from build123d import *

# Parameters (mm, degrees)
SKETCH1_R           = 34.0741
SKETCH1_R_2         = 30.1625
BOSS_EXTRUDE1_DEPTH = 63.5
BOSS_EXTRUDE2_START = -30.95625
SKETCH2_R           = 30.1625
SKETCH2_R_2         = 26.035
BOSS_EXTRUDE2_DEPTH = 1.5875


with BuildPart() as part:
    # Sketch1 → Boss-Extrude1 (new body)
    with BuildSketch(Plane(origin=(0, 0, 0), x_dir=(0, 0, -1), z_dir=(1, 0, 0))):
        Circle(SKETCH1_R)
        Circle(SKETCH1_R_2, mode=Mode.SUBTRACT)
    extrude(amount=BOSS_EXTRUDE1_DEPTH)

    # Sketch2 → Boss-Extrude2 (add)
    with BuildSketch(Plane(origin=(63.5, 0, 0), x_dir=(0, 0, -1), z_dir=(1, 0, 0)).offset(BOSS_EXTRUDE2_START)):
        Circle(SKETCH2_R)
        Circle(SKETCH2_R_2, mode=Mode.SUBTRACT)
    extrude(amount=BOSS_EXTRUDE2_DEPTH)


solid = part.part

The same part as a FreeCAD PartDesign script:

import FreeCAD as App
import Part
import Sketcher

V = App.Vector
Q = App.Units.Quantity

doc = App.newDocument("Part")
body = doc.addObject("PartDesign::Body", "Body")

# Sketch on YZ plane
sketch1 = body.newObject("Sketcher::SketchObject", "Sketch")
sketch1.AttachmentSupport = (doc.getObject("YZ_Plane"), [""])
sketch1.MapMode = "FlatFace"
sketch1.addGeometry(Part.Circle(V(0, 0, 0), V(0, 0, 1), 34), False)
sketch1.addGeometry(Part.Circle(V(0, 0, 0), V(0, 0, 1), 30), False)
sketch1.addConstraint(Sketcher.Constraint("Coincident", 0, 3, -1, 1))
sketch1.addConstraint(Sketcher.Constraint("Coincident", 1, 3, -1, 1))
sketch1.addConstraint(Sketcher.Constraint("Diameter", 0, Q("2.683 in")))
sketch1.addConstraint(Sketcher.Constraint("Diameter", 1, Q("2.375 in")))
pad1 = body.newObject("PartDesign::Pad", "Pad")
pad1.Profile = sketch1
pad1.Length = Q("2.5 in")

# Sketch on YZ plane
sketch2 = body.newObject("Sketcher::SketchObject", "Sketch001")
sketch2.AttachmentSupport = (doc.getObject("YZ_Plane"), [""])
sketch2.MapMode = "FlatFace"
sketch2.AttachmentOffset = App.Placement(V(0, 0, 1.28125 * 25.4), App.Rotation())
sketch2.addGeometry(Part.Circle(V(0, 0, 0), V(0, 0, 1), 30), False)
sketch2.addGeometry(Part.Circle(V(0, 0, 0), V(0, 0, 1), 26), False)
sketch2.addConstraint(Sketcher.Constraint("Coincident", 0, 3, -1, 1))
sketch2.addConstraint(Sketcher.Constraint("Coincident", 1, 3, -1, 1))
sketch2.addConstraint(Sketcher.Constraint("Diameter", 1, Q("2.05 in")))
sketch2.addConstraint(Sketcher.Constraint("Diameter", 0, Q("2.375 in")))
pad2 = body.newObject("PartDesign::Pad", "Pad001")
pad2.Profile = sketch2
pad2.Length = Q("0.0625 in")

doc.recompute()
